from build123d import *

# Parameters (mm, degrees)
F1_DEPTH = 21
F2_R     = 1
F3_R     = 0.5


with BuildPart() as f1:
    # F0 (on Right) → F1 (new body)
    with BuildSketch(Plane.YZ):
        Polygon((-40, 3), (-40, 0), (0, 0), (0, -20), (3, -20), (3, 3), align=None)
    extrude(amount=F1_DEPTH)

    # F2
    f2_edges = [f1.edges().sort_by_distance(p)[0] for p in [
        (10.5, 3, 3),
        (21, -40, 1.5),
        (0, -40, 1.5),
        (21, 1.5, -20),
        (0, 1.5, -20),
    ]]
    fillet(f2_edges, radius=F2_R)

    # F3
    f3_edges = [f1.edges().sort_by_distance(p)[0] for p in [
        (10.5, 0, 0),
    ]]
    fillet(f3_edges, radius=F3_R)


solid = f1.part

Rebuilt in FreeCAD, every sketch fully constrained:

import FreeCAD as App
import Part
import Sketcher
Q = App.Units.Quantity


def edges_at(feature, points):
    """Names of the edges that pass closest to the given points."""
    edges = feature.Shape.Edges
    near = lambda p: min(range(len(edges)), key=lambda i: edges[i].distToShape(Part.Vertex(*p))[0])
    return sorted({f"Edge{near(p) + 1}" for p in points})


def add_polygon(sketch, points):
    """Adds a closed chain of lines whose ends are joined by coincident constraints."""
    first, n = sketch.GeometryCount, len(points)
    for a, b in zip(points, points[1:] + points[:1]):
        sketch.addGeometry(Part.LineSegment(App.Vector(*a, 0), App.Vector(*b, 0)), False)
    for i in range(n):
        sketch.addConstraint(Sketcher.Constraint("Coincident", first + i, 2, first + (i + 1) % n, 1))

doc = App.newDocument("Part")
body = doc.addObject("PartDesign::Body", "Body")

# Sketch on YZ plane
sketch1 = doc.addObject("Sketcher::SketchObject", "Sketch")
body.addObject(sketch1)
sketch1.AttachmentSupport = (doc.YZ_Plane, [""])
sketch1.MapMode = "FlatFace"
add_polygon(sketch1, [(-40, 3), (-40, 0), (0, 0), (0, -20), (3, -20), (3, 3)])  # lines 0-5
sketch1.addConstraint([
    Sketcher.Constraint("Vertical", 0),
    Sketcher.Constraint("Horizontal", 1),
    Sketcher.Constraint("Vertical", 2),
    Sketcher.Constraint("Horizontal", 3),
    Sketcher.Constraint("Vertical", 4),
    Sketcher.Constraint("Horizontal", 5),
    Sketcher.Constraint("Coincident", 1, 2, -1, 1),
    Sketcher.Constraint("Equal", 3, 0),
    Sketcher.Constraint("DistanceX", 1, 1, 1, 2, Q("40 mm")),
    Sketcher.Constraint("DistanceX", 3, 1, 3, 2, Q("3 mm")),
    Sketcher.Constraint("DistanceY", 2, 2, 2, 1, Q("20 mm")),
])
pad1 = doc.addObject("PartDesign::Pad", "Pad")
body.addObject(pad1)
pad1.Profile = sketch1
pad1.Length = 21
doc.recompute()

fillet = doc.addObject("PartDesign::Fillet", "Fillet")
body.addObject(fillet)
fillet.Base = (pad1, edges_at(pad1, [
    (10.5, 3, 3),
    (21, -40, 1.5),
    (0, -40, 1.5),
    (21, 1.5, -20),
    (0, 1.5, -20),
]))
fillet.Radius = 1
doc.recompute()

fillet2 = doc.addObject("PartDesign::Fillet", "Fillet001")
body.addObject(fillet2)
fillet2.Base = (fillet, edges_at(fillet, [(10.5, 0, 0)]))
fillet2.Radius = 0.5

doc.recompute()
